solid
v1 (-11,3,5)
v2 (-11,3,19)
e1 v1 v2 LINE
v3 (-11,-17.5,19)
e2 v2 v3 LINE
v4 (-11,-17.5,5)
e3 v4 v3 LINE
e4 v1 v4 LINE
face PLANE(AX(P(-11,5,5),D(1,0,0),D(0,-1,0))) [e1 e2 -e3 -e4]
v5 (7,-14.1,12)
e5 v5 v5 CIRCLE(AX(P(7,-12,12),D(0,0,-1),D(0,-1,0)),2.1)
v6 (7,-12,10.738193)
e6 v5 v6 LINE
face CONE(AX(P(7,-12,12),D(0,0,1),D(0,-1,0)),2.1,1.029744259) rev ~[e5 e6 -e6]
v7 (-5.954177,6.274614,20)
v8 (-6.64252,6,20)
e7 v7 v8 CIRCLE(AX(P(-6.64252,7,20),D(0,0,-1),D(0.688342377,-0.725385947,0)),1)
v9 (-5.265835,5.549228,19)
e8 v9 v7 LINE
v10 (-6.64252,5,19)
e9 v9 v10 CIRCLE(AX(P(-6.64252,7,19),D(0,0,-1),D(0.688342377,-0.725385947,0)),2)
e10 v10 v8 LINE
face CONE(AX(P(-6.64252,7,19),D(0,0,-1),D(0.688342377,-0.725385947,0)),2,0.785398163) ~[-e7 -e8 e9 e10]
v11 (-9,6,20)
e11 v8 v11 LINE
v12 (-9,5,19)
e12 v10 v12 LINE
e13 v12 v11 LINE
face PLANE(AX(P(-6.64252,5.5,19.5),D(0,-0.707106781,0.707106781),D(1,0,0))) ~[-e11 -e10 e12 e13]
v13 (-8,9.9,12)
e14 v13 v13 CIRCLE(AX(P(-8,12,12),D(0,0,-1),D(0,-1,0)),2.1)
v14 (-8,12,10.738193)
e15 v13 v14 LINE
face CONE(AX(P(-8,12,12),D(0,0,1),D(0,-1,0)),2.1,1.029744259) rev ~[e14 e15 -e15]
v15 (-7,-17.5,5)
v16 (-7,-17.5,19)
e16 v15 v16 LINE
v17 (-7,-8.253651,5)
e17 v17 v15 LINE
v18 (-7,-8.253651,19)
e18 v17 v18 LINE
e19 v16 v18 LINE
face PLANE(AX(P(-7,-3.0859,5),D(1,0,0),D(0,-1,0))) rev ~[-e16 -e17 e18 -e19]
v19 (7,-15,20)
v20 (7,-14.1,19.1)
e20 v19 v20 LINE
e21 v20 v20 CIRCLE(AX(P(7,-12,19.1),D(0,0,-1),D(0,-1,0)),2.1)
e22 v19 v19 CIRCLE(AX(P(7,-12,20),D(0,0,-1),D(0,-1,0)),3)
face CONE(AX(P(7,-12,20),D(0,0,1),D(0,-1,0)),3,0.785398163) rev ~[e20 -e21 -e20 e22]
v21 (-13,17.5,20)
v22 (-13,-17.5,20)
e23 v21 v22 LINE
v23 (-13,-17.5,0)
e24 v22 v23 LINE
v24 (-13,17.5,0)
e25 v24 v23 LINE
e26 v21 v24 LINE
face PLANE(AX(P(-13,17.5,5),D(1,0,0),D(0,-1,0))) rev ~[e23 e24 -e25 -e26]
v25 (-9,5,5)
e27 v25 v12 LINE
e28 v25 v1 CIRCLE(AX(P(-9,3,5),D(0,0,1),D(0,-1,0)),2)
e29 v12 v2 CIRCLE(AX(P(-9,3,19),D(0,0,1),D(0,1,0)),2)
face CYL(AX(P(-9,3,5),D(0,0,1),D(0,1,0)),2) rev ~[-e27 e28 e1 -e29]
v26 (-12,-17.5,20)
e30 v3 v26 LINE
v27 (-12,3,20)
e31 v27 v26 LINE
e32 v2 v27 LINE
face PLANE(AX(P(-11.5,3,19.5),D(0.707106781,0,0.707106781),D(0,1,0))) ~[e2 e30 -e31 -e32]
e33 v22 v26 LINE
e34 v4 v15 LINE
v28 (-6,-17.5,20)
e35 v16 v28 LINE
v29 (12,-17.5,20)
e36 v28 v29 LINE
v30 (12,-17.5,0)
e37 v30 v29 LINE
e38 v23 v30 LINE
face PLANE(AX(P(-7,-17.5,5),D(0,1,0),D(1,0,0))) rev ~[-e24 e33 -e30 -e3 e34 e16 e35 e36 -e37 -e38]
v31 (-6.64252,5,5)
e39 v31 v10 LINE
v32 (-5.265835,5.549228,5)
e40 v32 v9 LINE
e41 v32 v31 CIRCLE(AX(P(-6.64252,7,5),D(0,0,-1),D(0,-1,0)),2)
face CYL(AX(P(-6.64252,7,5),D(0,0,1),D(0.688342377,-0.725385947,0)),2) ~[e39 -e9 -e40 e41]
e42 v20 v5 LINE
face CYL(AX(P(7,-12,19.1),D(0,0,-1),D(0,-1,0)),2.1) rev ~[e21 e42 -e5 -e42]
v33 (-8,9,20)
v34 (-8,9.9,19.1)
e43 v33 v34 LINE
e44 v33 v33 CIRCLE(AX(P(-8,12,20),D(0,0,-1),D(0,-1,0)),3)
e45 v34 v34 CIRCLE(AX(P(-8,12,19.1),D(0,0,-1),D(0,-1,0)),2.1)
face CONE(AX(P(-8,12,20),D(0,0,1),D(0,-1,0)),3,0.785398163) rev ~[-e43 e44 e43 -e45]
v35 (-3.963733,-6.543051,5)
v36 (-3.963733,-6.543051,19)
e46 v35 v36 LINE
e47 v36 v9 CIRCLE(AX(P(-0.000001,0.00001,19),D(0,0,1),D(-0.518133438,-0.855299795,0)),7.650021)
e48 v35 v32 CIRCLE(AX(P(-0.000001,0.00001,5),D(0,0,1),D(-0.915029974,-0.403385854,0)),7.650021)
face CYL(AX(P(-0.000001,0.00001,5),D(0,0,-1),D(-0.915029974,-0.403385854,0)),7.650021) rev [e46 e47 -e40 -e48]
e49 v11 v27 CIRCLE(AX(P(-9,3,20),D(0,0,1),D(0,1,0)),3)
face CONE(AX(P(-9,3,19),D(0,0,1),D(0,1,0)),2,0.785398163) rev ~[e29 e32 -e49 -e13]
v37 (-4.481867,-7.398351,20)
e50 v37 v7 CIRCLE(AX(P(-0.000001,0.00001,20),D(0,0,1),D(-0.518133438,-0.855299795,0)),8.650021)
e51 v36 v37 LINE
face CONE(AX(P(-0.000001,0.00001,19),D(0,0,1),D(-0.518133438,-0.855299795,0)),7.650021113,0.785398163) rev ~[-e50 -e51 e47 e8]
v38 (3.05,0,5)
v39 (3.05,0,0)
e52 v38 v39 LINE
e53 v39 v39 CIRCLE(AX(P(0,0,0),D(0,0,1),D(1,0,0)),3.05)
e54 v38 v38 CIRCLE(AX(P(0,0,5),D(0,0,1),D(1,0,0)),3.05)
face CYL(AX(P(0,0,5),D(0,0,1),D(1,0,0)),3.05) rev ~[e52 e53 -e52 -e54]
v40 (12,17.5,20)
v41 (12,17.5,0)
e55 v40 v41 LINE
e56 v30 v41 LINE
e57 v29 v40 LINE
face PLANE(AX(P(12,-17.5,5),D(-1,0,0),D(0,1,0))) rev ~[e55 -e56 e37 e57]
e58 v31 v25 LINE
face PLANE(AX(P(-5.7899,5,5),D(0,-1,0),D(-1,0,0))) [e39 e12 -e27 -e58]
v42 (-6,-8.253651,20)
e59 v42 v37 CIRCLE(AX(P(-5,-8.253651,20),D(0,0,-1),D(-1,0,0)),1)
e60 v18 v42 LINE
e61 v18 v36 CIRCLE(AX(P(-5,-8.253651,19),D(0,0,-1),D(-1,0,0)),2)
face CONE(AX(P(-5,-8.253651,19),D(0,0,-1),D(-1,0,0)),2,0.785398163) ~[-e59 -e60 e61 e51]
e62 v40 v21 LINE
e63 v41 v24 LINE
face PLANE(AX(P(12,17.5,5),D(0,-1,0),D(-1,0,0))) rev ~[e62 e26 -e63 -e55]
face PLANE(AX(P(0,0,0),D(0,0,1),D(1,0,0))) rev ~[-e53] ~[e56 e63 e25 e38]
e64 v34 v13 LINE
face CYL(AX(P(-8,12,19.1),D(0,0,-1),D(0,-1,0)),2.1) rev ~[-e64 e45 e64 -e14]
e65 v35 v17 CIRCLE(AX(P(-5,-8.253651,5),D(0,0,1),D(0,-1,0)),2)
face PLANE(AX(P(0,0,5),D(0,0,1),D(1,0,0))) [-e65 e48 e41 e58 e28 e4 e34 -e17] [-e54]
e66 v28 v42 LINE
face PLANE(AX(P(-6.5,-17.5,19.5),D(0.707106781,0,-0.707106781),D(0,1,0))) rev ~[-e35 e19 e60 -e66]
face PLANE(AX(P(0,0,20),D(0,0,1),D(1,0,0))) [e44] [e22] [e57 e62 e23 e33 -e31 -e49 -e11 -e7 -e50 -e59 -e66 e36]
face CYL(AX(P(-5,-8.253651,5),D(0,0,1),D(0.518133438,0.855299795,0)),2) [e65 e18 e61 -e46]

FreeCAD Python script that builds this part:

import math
import FreeCAD as App
import Part
import Sketcher
Q = App.Units.Quantity


def edges_at(feature, points):
    """Names of the edges that pass closest to the given points."""
    edges = feature.Shape.Edges
    near = lambda p: min(range(len(edges)), key=lambda i: edges[i].distToShape(Part.Vertex(*p))[0])
    return sorted({f"Edge{near(p) + 1}" for p in points})

doc = App.newDocument("Part")
body = doc.addObject("PartDesign::Body", "Body")

# Sketch on XY plane
sketch1 = doc.addObject("Sketcher::SketchObject", "Sketch")
body.addObject(sketch1)
sketch1.AttachmentSupport = (doc.XY_Plane, [""])
sketch1.MapMode = "FlatFace"
sketch1.addGeometry(Part.LineSegment(App.Vector(12, -18, 0), App.Vector(12, 18, 0)), False)
sketch1.addGeometry(Part.LineSegment(App.Vector(12, 18, 0), App.Vector(-13, 18, 0)), False)
sketch1.addGeometry(Part.LineSegment(App.Vector(-13, 18, 0), App.Vector(-13, -18, 0)), False)
sketch1.addGeometry(Part.LineSegment(App.Vector(-13, -18, 0), App.Vector(12, -18, 0)), False)
sketch1.addConstraint(Sketcher.Constraint("Coincident", 0, 2, 1, 1))
sketch1.addConstraint(Sketcher.Constraint("Coincident", 1, 2, 2, 1))
sketch1.addConstraint(Sketcher.Constraint("Coincident", 2, 2, 3, 1))
sketch1.addConstraint(Sketcher.Constraint("Coincident", 3, 2, 0, 1))
sketch1.addConstraint(Sketcher.Constraint("Vertical", 0))
sketch1.addConstraint(Sketcher.Constraint("Horizontal", 1))
sketch1.addConstraint(Sketcher.Constraint("Vertical", 2))
sketch1.addConstraint(Sketcher.Constraint("Horizontal", 3))
sketch1.addConstraint(Sketcher.Constraint("DistanceX", 1, 2, 1, 1, Q("25 mm")))
sketch1.addConstraint(Sketcher.Constraint("DistanceY", 0, 1, 0, 2, Q("35 mm")))
sketch1.addConstraint(Sketcher.Constraint("DistanceX", -1, 1, 0, 2, Q("12 mm")))
sketch1.addConstraint(Sketcher.Constraint("DistanceY", -1, 1, 0, 2, Q("17.5 mm")))
pad1 = doc.addObject("PartDesign::Pad", "Pad")
body.addObject(pad1)
pad1.Profile = sketch1
pad1.Length = 5

# Sketch on XY plane
sketch2 = doc.addObject("Sketcher::SketchObject", "Sketch001")
body.addObject(sketch2)
sketch2.AttachmentSupport = (doc.XY_Plane, [""])
sketch2.MapMode = "FlatFace"
sketch2.AttachmentOffset = App.Placement(App.Vector(0, 0, 5), App.Rotation())
sketch2.addGeometry(Part.Circle(App.Vector(0, 0, 0), App.Vector(0, 0, 1), 3), False)
sketch2.addConstraint(Sketcher.Constraint("Coincident", 0, 3, -1, 1))
sketch2.addConstraint(Sketcher.Constraint("Diameter", 0, Q("6.1 mm")))
pocket1 = doc.addObject("PartDesign::Pocket", "Pocket")
body.addObject(pocket1)
pocket1.Profile = sketch2
pocket1.Type = "UpToFirst"

# Sketch on XY plane
sketch3 = doc.addObject("Sketcher::SketchObject", "Sketch002")
body.addObject(sketch3)
sketch3.AttachmentSupport = (doc.XY_Plane, [""])
sketch3.MapMode = "FlatFace"
sketch3.AttachmentOffset = App.Placement(App.Vector(0, 0, 5), App.Rotation())
sketch3.addGeometry(Part.ArcOfCircle(Part.Circle(App.Vector(0, 0, 0), App.Vector(0, 0, 1), 7.7), math.radians(-156), math.radians(139)), False)
sketch3.addGeometry(Part.LineSegment(App.Vector(-7, -3.1, 0), App.Vector(-7, -17.5, 0)), False)
sketch3.addGeometry(Part.LineSegment(App.Vector(-7, -17.5, 0), App.Vector(12, -17.5, 0)), False)
sketch3.addGeometry(Part.LineSegment(App.Vector(12, -17.5, 0), App.Vector(12, 17.5, 0)), False)
sketch3.addGeometry(Part.LineSegment(App.Vector(12, 17.5, 0), App.Vector(-13, 17.5, 0)), False)
sketch3.addGeometry(Part.LineSegment(App.Vector(-13, 17.5, 0), App.Vector(-13, -17.5, 0)), False)
sketch3.addGeometry(Part.LineSegment(App.Vector(-13, -17.5, 0), App.Vector(-11, -17.5, 0)), False)
sketch3.addGeometry(Part.LineSegment(App.Vector(-11, -17.5, 0), App.Vector(-11, 5, 0)), False)
sketch3.addGeometry(Part.LineSegment(App.Vector(-11, 5, 0), App.Vector(-5.8, 5, 0)), False)
sketch3.addConstraint(Sketcher.Constraint("Coincident", 0, 1, 1, 1))
sketch3.addConstraint(Sketcher.Constraint("Coincident", 1, 2, 2, 1))
sketch3.addConstraint(Sketcher.Constraint("Coincident", 2, 2, 3, 1))
sketch3.addConstraint(Sketcher.Constraint("Coincident", 3, 2, 4, 1))
sketch3.addConstraint(Sketcher.Constraint("Coincident", 4, 2, 5, 1))
sketch3.addConstraint(Sketcher.Constraint("Coincident", 5, 2, 6, 1))
sketch3.addConstraint(Sketcher.Constraint("Coincident", 6, 2, 7, 1))
sketch3.addConstraint(Sketcher.Constraint("Coincident", 7, 2, 8, 1))
sketch3.addConstraint(Sketcher.Constraint("Coincident", 8, 2, 0, 2))
sketch3.addConstraint(Sketcher.Constraint("Vertical", 1))
sketch3.addConstraint(Sketcher.Constraint("Horizontal", 2))
sketch3.addConstraint(Sketcher.Constraint("Vertical", 3))
sketch3.addConstraint(Sketcher.Constraint("Horizontal", 4))
sketch3.addConstraint(Sketcher.Constraint("Vertical", 5))
sketch3.addConstraint(Sketcher.Constraint("Horizontal", 6))
sketch3.addConstraint(Sketcher.Constraint("Vertical", 7))
sketch3.addConstraint(Sketcher.Constraint("Horizontal", 8))
sketch3.addConstraint(Sketcher.Constraint("Coincident", 0, 3, -1, 1))
sketch3.addConstraint(Sketcher.Constraint("Horizontal", 2, 2, 5, 2))
sketch3.addConstraint(Sketcher.Constraint("Radius", 0, Q("7.65 mm")))
sketch3.addConstraint(Sketcher.Constraint("DistanceX", 0, 1, -1, 1, Q("7 mm")))
sketch3.addConstraint(Sketcher.Constraint("DistanceX", 6, 2, -1, 1, Q("11 mm")))
sketch3.addConstraint(Sketcher.Constraint("DistanceY", -1, 1, 7, 2, Q("5 mm")))
sketch3.addConstraint(Sketcher.Constraint("DistanceX", 2, 1, 2, 2, Q("19 mm")))
sketch3.addConstraint(Sketcher.Constraint("DistanceX", 4, 2, 4, 1, Q("25 mm")))
sketch3.addConstraint(Sketcher.Constraint("DistanceY", 3, 1, 3, 2, Q("35 mm")))
sketch3.addConstraint(Sketcher.Constraint("DistanceY", 7, 1, 7, 2, Q("22.5 mm")))
pad2 = doc.addObject("PartDesign::Pad", "Pad001")
body.addObject(pad2)
pad2.Profile = sketch3
pad2.Length = 15
doc.recompute()

fillet = doc.addObject("PartDesign::Fillet", "Fillet")
body.addObject(fillet)
fillet.Base = (pad2, edges_at(pad2, [(-7, -3.086, 12.5), (-5.79, 5, 12.5), (-11, 5, 12.5)]))
fillet.Radius = 2

# Sketch on XY plane
sketch4 = doc.addObject("Sketcher::SketchObject", "Sketch003")
body.addObject(sketch4)
sketch4.AttachmentSupport = (doc.XY_Plane, [""])
sketch4.MapMode = "FlatFace"
sketch4.AttachmentOffset = App.Placement(App.Vector(0, 0, 20), App.Rotation())
sketch4.addGeometry(Part.Circle(App.Vector(-8, 12, 0), App.Vector(0, 0, 1), 2.1), False)
sketch4.addGeometry(Part.Circle(App.Vector(7, -12, 0), App.Vector(0, 0, 1), 2.1), False)
sketch4.addConstraint(Sketcher.Constraint("Equal", 0, 1))
sketch4.addConstraint(Sketcher.Constraint("Diameter", 0, Q("4.2 mm")))
sketch4.addConstraint(Sketcher.Constraint("DistanceX", 0, 3, -1, 1, Q("8 mm")))
sketch4.addConstraint(Sketcher.Constraint("DistanceY", -1, 1, 0, 3, Q("12 mm")))
sketch4.addConstraint(Sketcher.Constraint("DistanceX", -1, 1, 1, 3, Q("7 mm")))
sketch4.addConstraint(Sketcher.Constraint("DistanceY", 1, 3, -1, 1, Q("12 mm")))
doc.recompute()
hole = doc.addObject("PartDesign::Hole", "Hole")
body.addObject(hole)
hole.Profile = sketch4
hole.ThreadType = "None"
hole.Diameter = 4.2
hole.DepthType = "Dimension"
hole.Depth = 8
hole.DrillPoint = "Angled"
hole.DrillPointAngle = 118
hole.HoleCutType = "Countersink"
hole.HoleCutDiameter = 6
hole.HoleCutCountersinkAngle = 90
doc.recompute()

chamfer = doc.addObject("PartDesign::Chamfer", "Chamfer")
body.addObject(chamfer)
chamfer.Base = (hole, edges_at(hole, [
    (7.606, 0.819, 20),
    (-5.982, -6.511, 20),
    (-7, -12.877, 20),
    (-5.901, 5.142, 20),
    (-7.821, 5, 20),
    (-11, -7.25, 20),
]))
chamfer.Size = 1

doc.recompute()
